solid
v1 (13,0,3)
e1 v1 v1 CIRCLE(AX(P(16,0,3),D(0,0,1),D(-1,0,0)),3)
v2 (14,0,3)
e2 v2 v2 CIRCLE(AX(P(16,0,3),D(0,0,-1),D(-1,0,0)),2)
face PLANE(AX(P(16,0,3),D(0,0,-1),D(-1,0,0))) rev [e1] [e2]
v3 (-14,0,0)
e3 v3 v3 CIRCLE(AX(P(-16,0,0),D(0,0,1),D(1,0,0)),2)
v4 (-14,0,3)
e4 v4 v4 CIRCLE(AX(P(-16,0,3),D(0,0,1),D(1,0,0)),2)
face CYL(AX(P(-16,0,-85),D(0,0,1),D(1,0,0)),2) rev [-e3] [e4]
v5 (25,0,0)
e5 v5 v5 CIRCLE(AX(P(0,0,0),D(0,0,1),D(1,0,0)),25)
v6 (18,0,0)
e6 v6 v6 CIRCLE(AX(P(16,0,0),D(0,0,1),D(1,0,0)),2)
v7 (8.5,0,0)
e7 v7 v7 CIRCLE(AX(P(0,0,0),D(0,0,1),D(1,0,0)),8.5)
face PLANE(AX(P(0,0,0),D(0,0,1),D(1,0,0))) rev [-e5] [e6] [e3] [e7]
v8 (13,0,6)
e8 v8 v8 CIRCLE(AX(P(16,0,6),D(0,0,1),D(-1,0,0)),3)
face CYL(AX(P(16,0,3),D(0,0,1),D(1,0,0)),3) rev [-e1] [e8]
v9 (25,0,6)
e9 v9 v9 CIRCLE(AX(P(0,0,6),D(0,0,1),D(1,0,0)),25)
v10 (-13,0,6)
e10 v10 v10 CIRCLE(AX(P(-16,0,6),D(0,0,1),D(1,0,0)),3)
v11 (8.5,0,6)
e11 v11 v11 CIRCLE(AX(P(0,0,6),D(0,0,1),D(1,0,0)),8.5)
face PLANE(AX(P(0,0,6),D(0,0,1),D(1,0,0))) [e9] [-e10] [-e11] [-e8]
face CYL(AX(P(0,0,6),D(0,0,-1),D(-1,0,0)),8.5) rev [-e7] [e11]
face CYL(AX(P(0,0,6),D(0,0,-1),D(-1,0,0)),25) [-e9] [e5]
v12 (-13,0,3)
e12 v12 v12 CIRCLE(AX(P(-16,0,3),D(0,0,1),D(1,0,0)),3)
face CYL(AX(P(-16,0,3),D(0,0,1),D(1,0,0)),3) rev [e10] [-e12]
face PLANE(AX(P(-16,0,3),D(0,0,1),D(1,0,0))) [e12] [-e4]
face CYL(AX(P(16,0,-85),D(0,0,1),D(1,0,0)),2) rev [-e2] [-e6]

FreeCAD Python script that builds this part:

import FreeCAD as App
import Part
import Sketcher
Q = App.Units.Quantity

doc = App.newDocument("Part")
body = doc.addObject("PartDesign::Body", "Body")

# Sketch on XY plane
sketch1 = body.newObject("Sketcher::SketchObject", "Sketch")
sketch1.AttachmentSupport = (doc.getObject("XY_Plane"), [""])
sketch1.MapMode = "FlatFace"
sketch1.addGeometry([
    Part.Circle(App.Vector(0, 0, 0), App.Vector(0, 0, 1), 25),
    Part.Circle(App.Vector(0, 0, 0), App.Vector(0, 0, 1), 8.5),
], False)
sketch1.addConstraint([
    Sketcher.Constraint("Coincident", 0, 3, -1, 1),
    Sketcher.Constraint("Coincident", 1, 3, -1, 1),
    Sketcher.Constraint("Diameter", 0, Q("50 mm")),
    Sketcher.Constraint("Diameter", 1, Q("17 mm")),
])
pad1 = body.newObject("PartDesign::Pad", "Pad")
pad1.Profile = sketch1
pad1.Length = 6

# Sketch on XY plane
sketch2 = body.newObject("Sketcher::SketchObject", "Sketch001")
sketch2.AttachmentSupport = (doc.getObject("XY_Plane"), [""])
sketch2.MapMode = "FlatFace"
sketch2.AttachmentOffset = App.Placement(App.Vector(0, 0, 6), App.Rotation())
sketch2.addGeometry([
    Part.Circle(App.Vector(-16, 0, 0), App.Vector(0, 0, 1), 3),
    Part.Circle(App.Vector(16, 0, 0), App.Vector(0, 0, 1), 3),
], False)
sketch2.addConstraint([
    Sketcher.Constraint("Equal", 0, 1),
    Sketcher.Constraint("Symmetric", 0, 3, 1, 3, -1, 1),
    Sketcher.Constraint("PointOnObject", 0, 3, -1),
    Sketcher.Constraint("Diameter", 0, Q("6 mm")),
    Sketcher.Constraint("DistanceX", 0, 3, -1, 1, Q("16 mm")),
])
pocket1 = body.newObject("PartDesign::Pocket", "Pocket")
pocket1.Profile = sketch2
pocket1.Length = 3

# Sketch on XY plane
sketch3 = body.newObject("Sketcher::SketchObject", "Sketch002")
sketch3.AttachmentSupport = (doc.getObject("XY_Plane"), [""])
sketch3.MapMode = "FlatFace"
sketch3.AttachmentOffset = App.Placement(App.Vector(0, 0, 6), App.Rotation())
sketch3.addGeometry([
    Part.Circle(App.Vector(-16, 0, 0), App.Vector(0, 0, 1), 2),
    Part.Circle(App.Vector(16, 0, 0), App.Vector(0, 0, 1), 2),
], False)
sketch3.addConstraint([
    Sketcher.Constraint("Equal", 0, 1),
    Sketcher.Constraint("Symmetric", 0, 3, 1, 3, -1, 1),
    Sketcher.Constraint("PointOnObject", 0, 3, -1),
    Sketcher.Constraint("Diameter", 0, Q("4 mm")),
    Sketcher.Constraint("DistanceX", 0, 3, -1, 1, Q("16 mm")),
])
pocket2 = body.newObject("PartDesign::Pocket", "Pocket001")
pocket2.Profile = sketch3
pocket2.Length = 91

doc.recompute()
